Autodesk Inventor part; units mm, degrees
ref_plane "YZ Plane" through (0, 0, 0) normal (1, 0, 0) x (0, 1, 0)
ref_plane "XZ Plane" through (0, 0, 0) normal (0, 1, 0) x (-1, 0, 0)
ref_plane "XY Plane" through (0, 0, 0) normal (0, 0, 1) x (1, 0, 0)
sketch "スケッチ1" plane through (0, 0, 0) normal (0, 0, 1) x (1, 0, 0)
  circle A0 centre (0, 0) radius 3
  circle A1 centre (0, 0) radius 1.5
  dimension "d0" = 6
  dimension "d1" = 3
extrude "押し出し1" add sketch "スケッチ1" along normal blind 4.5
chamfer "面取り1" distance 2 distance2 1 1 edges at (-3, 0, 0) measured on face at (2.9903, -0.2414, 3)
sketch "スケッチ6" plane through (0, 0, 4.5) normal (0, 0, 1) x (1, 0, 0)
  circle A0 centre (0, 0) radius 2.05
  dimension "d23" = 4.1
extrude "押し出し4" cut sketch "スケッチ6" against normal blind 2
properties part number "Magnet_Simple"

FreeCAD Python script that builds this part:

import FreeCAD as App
import Part
import Sketcher

V = App.Vector
Q = App.Units.Quantity


def edges_at(feature, points):
    """Names of the edges that pass closest to the given points."""
    edges = feature.Shape.Edges
    near = lambda p: min(range(len(edges)), key=lambda i: edges[i].distToShape(Part.Vertex(*p))[0])
    return sorted({f"Edge{near(p) + 1}" for p in points})

doc = App.newDocument("Part")
body = doc.addObject("PartDesign::Body", "Body")

sketch1 = body.newObject("Sketcher::SketchObject", "Sketch")
sketch1.AttachmentSupport = (doc.getObject("XY_Plane"), [""])
sketch1.MapMode = "FlatFace"
sketch1.addGeometry([
    Part.Circle(V(0, 0, 0), V(0, 0, 1), 3),
    Part.Circle(V(0, 0, 0), V(0, 0, 1), 1.5),
], False)
sketch1.addConstraint([
    Sketcher.Constraint("Coincident", 0, 3, -1, 1),
    Sketcher.Constraint("Coincident", 1, 3, -1, 1),
    Sketcher.Constraint("Diameter", 0, Q("6 mm")),
    Sketcher.Constraint("Diameter", 1, Q("3 mm")),
])
pad1 = body.newObject("PartDesign::Pad", "Pad")
pad1.Profile = sketch1
pad1.Length = 4.5
doc.recompute()

chamfer = body.newObject("PartDesign::Chamfer", "Chamfer")
chamfer.Base = (pad1, edges_at(pad1, [(-3, 0, 0)]))
chamfer.ChamferType = "Two distances"
chamfer.Size = 2
chamfer.Size2 = 1

sketch2 = body.newObject("Sketcher::SketchObject", "Sketch001")
sketch2.AttachmentSupport = (doc.getObject("XY_Plane"), [""])
sketch2.MapMode = "FlatFace"
sketch2.AttachmentOffset = App.Placement(V(0, 0, 4.5), App.Rotation())
sketch2.addGeometry(Part.Circle(V(0, 0, 0), V(0, 0, 1), 2), False)
sketch2.addConstraint([
    Sketcher.Constraint("Coincident", 0, 3, -1, 1),
    Sketcher.Constraint("Diameter", 0, Q("4.1 mm")),
])
pocket1 = body.newObject("PartDesign::Pocket", "Pocket")
pocket1.Profile = sketch2
pocket1.Length = 2

doc.recompute()
